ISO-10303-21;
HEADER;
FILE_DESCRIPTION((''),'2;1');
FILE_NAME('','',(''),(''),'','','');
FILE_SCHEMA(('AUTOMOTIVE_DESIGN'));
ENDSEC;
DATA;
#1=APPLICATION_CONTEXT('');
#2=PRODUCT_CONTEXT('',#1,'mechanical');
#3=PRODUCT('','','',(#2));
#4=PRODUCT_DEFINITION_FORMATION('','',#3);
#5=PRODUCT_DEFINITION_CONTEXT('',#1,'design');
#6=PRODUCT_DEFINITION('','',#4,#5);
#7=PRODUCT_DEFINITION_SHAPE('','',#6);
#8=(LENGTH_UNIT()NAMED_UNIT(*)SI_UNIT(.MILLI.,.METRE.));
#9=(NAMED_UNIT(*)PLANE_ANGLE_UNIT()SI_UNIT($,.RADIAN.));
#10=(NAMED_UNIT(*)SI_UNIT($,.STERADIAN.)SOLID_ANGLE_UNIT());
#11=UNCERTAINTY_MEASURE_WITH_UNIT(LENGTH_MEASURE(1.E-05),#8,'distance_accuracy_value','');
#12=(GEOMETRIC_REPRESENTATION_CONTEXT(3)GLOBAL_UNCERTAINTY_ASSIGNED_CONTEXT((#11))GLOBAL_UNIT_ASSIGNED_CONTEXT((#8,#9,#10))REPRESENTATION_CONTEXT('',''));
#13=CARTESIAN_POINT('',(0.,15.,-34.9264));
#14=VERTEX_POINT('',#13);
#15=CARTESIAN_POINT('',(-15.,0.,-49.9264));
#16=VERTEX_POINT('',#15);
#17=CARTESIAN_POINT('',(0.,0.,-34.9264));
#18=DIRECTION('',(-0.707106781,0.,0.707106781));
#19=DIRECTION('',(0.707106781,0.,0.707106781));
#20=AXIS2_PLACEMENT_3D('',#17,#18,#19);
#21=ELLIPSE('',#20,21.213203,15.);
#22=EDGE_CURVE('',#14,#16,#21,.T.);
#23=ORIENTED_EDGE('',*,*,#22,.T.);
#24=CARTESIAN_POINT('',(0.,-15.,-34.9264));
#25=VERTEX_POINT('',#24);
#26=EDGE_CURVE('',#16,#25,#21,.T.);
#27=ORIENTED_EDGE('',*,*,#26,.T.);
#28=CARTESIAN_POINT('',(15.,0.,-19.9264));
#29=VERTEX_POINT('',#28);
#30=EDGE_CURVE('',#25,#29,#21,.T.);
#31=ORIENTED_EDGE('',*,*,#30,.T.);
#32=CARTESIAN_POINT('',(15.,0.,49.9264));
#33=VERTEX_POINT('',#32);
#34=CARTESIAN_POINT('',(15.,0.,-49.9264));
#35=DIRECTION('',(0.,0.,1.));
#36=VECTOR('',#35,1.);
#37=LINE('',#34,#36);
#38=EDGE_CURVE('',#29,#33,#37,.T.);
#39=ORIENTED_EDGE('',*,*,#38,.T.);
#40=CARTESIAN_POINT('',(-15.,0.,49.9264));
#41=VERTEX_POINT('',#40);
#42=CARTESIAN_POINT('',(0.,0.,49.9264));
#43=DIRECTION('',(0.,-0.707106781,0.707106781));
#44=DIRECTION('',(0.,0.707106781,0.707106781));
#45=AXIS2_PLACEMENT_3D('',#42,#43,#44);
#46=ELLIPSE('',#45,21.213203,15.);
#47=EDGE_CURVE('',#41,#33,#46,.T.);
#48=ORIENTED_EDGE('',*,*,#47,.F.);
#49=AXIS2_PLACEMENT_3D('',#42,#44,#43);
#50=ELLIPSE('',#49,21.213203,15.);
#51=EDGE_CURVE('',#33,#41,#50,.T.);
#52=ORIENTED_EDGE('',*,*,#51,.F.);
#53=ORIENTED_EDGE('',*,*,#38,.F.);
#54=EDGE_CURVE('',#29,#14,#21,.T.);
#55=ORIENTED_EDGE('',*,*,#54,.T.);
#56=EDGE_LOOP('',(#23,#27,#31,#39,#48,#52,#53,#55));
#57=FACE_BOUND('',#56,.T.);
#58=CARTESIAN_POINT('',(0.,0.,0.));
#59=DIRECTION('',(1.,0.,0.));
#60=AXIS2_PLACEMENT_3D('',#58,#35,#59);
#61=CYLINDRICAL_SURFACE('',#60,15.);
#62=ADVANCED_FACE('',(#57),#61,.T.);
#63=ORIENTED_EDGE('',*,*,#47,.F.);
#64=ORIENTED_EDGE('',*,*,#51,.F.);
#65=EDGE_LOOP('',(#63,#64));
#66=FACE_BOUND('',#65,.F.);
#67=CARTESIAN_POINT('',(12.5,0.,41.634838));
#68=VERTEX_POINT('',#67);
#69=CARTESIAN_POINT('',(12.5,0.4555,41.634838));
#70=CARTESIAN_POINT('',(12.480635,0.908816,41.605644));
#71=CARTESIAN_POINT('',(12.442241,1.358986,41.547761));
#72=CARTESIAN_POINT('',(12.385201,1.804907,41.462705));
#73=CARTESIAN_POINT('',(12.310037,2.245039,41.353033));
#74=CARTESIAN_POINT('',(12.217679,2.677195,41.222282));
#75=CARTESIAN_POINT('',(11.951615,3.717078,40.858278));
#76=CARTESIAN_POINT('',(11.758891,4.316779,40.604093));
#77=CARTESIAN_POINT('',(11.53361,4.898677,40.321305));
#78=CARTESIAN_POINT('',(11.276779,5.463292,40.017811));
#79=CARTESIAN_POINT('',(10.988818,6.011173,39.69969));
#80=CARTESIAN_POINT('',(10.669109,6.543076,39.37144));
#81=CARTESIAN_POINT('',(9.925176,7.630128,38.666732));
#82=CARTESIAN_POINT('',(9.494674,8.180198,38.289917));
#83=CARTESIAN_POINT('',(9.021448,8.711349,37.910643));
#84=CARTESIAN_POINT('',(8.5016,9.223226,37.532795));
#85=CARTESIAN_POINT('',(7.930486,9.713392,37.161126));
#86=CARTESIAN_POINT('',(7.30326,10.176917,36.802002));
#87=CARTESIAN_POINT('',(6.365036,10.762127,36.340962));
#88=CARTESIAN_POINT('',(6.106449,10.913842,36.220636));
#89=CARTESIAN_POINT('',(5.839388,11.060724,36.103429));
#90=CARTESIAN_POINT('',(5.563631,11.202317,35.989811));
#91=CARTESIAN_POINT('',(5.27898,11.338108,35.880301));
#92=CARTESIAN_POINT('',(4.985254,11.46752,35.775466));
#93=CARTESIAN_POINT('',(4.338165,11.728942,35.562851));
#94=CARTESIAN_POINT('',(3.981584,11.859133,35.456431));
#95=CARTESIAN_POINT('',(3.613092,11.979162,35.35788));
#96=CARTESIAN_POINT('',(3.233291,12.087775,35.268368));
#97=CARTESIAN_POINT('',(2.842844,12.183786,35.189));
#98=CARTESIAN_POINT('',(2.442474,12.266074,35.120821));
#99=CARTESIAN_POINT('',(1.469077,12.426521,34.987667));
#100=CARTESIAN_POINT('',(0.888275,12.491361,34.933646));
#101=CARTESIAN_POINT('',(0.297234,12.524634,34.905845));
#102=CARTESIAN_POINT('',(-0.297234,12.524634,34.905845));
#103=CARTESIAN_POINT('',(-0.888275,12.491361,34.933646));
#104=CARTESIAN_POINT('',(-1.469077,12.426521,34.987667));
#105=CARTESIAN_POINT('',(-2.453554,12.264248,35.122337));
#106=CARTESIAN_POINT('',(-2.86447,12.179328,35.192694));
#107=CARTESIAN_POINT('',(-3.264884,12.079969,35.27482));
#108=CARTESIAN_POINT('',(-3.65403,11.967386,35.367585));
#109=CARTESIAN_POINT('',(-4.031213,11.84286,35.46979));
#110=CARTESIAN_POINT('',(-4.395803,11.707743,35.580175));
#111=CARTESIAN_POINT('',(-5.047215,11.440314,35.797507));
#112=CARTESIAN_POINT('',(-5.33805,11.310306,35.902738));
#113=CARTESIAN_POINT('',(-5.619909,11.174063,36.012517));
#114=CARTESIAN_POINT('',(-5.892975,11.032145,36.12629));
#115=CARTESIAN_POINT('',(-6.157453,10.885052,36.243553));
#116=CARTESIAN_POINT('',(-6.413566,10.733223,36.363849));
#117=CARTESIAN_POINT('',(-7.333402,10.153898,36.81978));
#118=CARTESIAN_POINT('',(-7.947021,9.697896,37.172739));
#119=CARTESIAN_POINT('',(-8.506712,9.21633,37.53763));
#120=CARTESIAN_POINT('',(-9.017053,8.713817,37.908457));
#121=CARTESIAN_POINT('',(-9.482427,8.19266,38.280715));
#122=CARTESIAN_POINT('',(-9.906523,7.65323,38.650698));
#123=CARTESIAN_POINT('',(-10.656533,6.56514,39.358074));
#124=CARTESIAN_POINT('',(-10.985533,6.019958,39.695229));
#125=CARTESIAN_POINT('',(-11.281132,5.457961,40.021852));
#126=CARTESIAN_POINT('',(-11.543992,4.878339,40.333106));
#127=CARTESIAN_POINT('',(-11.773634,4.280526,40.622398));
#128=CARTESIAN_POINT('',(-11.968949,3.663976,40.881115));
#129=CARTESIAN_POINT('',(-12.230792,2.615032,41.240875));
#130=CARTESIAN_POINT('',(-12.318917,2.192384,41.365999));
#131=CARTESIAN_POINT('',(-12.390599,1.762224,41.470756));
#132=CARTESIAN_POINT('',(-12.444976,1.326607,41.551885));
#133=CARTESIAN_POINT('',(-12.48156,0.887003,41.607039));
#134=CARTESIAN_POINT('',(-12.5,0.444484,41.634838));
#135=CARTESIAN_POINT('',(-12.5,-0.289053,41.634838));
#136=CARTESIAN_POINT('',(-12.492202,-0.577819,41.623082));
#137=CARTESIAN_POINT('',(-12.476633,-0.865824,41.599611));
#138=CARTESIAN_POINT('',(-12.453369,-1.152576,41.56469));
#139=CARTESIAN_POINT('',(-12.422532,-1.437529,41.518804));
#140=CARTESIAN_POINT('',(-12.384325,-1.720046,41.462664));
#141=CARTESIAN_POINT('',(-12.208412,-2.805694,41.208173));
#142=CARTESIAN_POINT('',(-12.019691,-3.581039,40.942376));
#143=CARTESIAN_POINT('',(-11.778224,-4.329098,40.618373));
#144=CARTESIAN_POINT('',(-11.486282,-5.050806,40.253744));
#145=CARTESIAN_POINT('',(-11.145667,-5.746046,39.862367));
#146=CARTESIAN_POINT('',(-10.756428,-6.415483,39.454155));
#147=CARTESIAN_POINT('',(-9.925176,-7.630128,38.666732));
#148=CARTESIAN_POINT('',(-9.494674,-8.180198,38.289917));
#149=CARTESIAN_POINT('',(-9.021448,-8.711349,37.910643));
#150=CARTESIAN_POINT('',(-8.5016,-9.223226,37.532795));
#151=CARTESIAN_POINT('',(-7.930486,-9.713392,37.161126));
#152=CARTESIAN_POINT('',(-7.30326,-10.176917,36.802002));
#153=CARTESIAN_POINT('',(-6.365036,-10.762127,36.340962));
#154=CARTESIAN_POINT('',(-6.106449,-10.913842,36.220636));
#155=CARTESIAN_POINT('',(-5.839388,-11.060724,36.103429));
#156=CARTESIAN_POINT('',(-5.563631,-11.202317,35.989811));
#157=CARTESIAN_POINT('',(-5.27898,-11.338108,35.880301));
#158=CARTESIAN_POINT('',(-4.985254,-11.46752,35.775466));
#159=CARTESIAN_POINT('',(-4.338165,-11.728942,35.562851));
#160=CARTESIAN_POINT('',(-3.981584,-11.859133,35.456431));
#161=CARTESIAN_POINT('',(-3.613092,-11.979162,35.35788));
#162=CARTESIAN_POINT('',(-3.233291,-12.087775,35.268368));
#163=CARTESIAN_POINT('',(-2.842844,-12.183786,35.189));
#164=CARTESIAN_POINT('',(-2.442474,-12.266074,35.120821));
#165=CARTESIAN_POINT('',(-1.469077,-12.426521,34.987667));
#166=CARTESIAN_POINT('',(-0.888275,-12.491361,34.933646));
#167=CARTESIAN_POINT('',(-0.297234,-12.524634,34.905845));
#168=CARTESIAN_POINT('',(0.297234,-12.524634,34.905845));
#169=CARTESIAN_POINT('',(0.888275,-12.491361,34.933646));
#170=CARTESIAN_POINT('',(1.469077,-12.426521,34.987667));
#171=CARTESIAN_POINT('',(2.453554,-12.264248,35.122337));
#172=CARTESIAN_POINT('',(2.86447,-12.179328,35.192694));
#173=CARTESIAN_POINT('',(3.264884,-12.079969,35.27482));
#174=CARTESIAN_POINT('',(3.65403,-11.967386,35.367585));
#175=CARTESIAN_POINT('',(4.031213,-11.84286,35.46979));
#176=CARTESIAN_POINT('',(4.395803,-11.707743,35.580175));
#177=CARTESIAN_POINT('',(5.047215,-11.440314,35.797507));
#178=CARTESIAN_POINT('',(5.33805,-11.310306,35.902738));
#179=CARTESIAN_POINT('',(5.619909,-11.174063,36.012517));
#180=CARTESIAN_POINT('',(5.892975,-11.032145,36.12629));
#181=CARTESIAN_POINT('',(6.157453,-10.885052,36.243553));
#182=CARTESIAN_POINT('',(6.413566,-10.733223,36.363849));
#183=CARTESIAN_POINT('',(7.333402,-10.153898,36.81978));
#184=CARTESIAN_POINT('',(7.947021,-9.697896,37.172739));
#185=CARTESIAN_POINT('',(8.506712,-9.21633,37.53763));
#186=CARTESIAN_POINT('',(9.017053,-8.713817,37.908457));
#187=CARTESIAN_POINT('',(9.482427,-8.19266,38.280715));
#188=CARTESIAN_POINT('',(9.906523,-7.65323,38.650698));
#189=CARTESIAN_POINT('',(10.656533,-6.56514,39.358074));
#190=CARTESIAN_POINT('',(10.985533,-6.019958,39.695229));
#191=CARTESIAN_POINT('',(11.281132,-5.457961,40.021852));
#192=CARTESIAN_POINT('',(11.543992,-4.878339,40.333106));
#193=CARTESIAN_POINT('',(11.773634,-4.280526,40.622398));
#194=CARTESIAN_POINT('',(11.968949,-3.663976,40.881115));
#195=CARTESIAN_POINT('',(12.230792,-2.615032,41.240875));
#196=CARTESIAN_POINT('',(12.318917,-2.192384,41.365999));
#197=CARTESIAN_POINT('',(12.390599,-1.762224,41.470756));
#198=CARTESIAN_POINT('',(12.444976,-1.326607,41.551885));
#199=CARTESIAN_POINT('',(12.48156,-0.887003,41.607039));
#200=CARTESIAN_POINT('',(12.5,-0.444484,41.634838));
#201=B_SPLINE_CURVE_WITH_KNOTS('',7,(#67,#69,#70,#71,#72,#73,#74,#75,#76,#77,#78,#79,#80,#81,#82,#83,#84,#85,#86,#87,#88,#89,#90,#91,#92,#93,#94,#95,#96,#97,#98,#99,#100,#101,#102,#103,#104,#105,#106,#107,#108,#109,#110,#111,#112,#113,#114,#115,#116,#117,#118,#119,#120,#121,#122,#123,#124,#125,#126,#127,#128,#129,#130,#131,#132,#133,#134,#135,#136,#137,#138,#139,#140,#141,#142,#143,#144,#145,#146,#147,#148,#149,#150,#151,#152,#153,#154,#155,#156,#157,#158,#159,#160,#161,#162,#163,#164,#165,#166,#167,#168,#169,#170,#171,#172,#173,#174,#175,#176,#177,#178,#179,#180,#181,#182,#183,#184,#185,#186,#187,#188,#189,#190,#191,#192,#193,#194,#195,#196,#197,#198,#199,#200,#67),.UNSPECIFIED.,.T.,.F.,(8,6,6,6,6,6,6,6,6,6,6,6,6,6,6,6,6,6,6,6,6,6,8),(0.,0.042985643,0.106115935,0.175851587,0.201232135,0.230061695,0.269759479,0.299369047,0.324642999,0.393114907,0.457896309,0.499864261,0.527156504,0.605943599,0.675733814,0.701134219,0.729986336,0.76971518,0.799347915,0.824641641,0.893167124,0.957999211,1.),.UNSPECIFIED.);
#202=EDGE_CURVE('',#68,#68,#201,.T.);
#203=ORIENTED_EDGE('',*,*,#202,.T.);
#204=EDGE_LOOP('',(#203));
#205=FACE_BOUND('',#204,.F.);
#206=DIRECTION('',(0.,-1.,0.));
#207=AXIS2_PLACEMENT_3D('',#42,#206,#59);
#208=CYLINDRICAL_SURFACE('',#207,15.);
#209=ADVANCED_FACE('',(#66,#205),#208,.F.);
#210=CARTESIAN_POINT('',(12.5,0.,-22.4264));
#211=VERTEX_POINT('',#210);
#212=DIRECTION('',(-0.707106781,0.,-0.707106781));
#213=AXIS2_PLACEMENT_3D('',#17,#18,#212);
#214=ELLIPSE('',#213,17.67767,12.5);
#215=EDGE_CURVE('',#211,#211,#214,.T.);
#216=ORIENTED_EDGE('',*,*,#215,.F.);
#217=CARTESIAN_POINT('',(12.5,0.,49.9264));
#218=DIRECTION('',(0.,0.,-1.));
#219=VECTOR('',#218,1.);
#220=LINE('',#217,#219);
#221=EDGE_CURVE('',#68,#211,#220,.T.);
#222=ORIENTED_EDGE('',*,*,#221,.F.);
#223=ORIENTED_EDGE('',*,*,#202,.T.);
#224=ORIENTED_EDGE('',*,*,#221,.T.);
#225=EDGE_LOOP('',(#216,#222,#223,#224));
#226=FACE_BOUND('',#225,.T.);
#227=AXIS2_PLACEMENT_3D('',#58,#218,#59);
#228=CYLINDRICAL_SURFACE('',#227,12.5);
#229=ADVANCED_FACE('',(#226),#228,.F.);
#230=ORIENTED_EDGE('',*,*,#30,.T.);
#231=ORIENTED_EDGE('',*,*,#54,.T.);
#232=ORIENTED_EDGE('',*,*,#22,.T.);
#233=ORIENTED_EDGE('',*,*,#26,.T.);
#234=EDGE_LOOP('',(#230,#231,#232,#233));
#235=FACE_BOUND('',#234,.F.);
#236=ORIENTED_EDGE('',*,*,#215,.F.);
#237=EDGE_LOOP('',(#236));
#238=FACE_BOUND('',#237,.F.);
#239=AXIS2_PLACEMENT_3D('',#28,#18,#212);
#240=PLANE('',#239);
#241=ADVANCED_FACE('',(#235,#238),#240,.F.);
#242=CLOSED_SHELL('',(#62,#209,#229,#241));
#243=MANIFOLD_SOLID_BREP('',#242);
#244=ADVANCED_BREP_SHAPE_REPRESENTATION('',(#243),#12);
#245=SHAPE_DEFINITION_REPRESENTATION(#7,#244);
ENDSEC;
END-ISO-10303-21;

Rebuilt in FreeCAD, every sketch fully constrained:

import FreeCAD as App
import Part
import Sketcher

doc = App.newDocument("Part")
body = doc.addObject("PartDesign::Body", "Body")

sketch1 = body.newObject("Sketcher::SketchObject", "Sketch")
sketch1.AttachmentSupport = (doc.getObject("XY_Plane"), [""])
sketch1.MapMode = "FlatFace"
sketch1.addGeometry([
    Part.Circle(App.Vector(0, 0, 0), App.Vector(0, 0, 1), 15),
    Part.Circle(App.Vector(0, 0, 0), App.Vector(0, 0, 1), 12.5),
], False)
sketch1.addConstraint([
    Sketcher.Constraint("Coincident", 0, 3, -1, 1),
    Sketcher.Constraint("Coincident", 1, 3, -1, 1),
    Sketcher.Constraint("Diameter", 0, 30.0),
    Sketcher.Constraint("Diameter", 1, 25.0),
])
pad1 = body.newObject("PartDesign::Pad", "Pad")
pad1.Profile = sketch1
pad1.Length = 99.8528
pad1.Midplane = True

sketch2 = body.newObject("Sketcher::SketchObject", "Sketch001")
sketch2.AttachmentSupport = (doc.getObject("XZ_Plane"), [""])
sketch2.MapMode = "FlatFace"
sketch2.addGeometry(Part.Circle(App.Vector(0, 49.9264, 0), App.Vector(0, 0, 1), 15), False)
sketch2.addConstraint([
    Sketcher.Constraint("PointOnObject", 0, 3, -2),
    Sketcher.Constraint("Diameter", 0, 30.0),
    Sketcher.Constraint("DistanceY", -1, 1, 0, 3, 49.9264),
])
pocket1 = body.newObject("PartDesign::Pocket", "Pocket")
pocket1.Profile = sketch2
pocket1.Length = 50
pocket1.Midplane = True

sketch3 = body.newObject("Sketcher::SketchObject", "Sketch002")
sketch3.AttachmentSupport = (doc.getObject("XZ_Plane"), [""])
sketch3.MapMode = "FlatFace"
sketch3.addGeometry([
    Part.LineSegment(App.Vector(15, -19.9264, 0), App.Vector(-15, -49.9264, 0)),
    Part.LineSegment(App.Vector(-15, -49.9264, 0), App.Vector(15, -49.9264, 0)),
    Part.LineSegment(App.Vector(15, -49.9264, 0), App.Vector(15, -19.9264, 0)),
], False)
sketch3.addConstraint([
    Sketcher.Constraint("Coincident", 0, 2, 1, 1),
    Sketcher.Constraint("Coincident", 1, 2, 2, 1),
    Sketcher.Constraint("Coincident", 2, 2, 0, 1),
    Sketcher.Constraint("Horizontal", 1),
    Sketcher.Constraint("Vertical", 2),
    Sketcher.Constraint("Equal", 1, 2),
    Sketcher.Constraint("DistanceX", 1, 1, 1, 2, 30.0),
    Sketcher.Constraint("DistanceX", 0, 2, -1, 1, 15.0),
    Sketcher.Constraint("DistanceY", 0, 2, -1, 1, 49.9264),
])
pocket2 = body.newObject("PartDesign::Pocket", "Pocket001")
pocket2.Profile = sketch3
pocket2.Length = 30
pocket2.Midplane = True

sketch4 = body.newObject("Sketcher::SketchObject", "Sketch003")
sketch4.AttachmentSupport = (doc.getObject("XZ_Plane"), [""])
sketch4.MapMode = "FlatFace"
sketch4.addGeometry([
    Part.LineSegment(App.Vector(15, -19.9264, 0), App.Vector(-15, -49.9264, 0)),
    Part.LineSegment(App.Vector(-15, -49.9264, 0), App.Vector(15, -49.9264, 0)),
    Part.LineSegment(App.Vector(15, -49.9264, 0), App.Vector(15, -19.9264, 0)),
], False)
sketch4.addConstraint([
    Sketcher.Constraint("Coincident", 0, 2, 1, 1),
    Sketcher.Constraint("Coincident", 1, 2, 2, 1),
    Sketcher.Constraint("Coincident", 2, 2, 0, 1),
    Sketcher.Constraint("Horizontal", 1),
    Sketcher.Constraint("Vertical", 2),
    Sketcher.Constraint("Equal", 1, 2),
    Sketcher.Constraint("DistanceX", 1, 1, 1, 2, 30.0),
    Sketcher.Constraint("DistanceX", 0, 2, -1, 1, 15.0),
    Sketcher.Constraint("DistanceY", 0, 2, -1, 1, 49.9264),
])
pocket3 = body.newObject("PartDesign::Pocket", "Pocket002")
pocket3.Profile = sketch4
pocket3.Length = 50
pocket3.Midplane = True

doc.recompute()
